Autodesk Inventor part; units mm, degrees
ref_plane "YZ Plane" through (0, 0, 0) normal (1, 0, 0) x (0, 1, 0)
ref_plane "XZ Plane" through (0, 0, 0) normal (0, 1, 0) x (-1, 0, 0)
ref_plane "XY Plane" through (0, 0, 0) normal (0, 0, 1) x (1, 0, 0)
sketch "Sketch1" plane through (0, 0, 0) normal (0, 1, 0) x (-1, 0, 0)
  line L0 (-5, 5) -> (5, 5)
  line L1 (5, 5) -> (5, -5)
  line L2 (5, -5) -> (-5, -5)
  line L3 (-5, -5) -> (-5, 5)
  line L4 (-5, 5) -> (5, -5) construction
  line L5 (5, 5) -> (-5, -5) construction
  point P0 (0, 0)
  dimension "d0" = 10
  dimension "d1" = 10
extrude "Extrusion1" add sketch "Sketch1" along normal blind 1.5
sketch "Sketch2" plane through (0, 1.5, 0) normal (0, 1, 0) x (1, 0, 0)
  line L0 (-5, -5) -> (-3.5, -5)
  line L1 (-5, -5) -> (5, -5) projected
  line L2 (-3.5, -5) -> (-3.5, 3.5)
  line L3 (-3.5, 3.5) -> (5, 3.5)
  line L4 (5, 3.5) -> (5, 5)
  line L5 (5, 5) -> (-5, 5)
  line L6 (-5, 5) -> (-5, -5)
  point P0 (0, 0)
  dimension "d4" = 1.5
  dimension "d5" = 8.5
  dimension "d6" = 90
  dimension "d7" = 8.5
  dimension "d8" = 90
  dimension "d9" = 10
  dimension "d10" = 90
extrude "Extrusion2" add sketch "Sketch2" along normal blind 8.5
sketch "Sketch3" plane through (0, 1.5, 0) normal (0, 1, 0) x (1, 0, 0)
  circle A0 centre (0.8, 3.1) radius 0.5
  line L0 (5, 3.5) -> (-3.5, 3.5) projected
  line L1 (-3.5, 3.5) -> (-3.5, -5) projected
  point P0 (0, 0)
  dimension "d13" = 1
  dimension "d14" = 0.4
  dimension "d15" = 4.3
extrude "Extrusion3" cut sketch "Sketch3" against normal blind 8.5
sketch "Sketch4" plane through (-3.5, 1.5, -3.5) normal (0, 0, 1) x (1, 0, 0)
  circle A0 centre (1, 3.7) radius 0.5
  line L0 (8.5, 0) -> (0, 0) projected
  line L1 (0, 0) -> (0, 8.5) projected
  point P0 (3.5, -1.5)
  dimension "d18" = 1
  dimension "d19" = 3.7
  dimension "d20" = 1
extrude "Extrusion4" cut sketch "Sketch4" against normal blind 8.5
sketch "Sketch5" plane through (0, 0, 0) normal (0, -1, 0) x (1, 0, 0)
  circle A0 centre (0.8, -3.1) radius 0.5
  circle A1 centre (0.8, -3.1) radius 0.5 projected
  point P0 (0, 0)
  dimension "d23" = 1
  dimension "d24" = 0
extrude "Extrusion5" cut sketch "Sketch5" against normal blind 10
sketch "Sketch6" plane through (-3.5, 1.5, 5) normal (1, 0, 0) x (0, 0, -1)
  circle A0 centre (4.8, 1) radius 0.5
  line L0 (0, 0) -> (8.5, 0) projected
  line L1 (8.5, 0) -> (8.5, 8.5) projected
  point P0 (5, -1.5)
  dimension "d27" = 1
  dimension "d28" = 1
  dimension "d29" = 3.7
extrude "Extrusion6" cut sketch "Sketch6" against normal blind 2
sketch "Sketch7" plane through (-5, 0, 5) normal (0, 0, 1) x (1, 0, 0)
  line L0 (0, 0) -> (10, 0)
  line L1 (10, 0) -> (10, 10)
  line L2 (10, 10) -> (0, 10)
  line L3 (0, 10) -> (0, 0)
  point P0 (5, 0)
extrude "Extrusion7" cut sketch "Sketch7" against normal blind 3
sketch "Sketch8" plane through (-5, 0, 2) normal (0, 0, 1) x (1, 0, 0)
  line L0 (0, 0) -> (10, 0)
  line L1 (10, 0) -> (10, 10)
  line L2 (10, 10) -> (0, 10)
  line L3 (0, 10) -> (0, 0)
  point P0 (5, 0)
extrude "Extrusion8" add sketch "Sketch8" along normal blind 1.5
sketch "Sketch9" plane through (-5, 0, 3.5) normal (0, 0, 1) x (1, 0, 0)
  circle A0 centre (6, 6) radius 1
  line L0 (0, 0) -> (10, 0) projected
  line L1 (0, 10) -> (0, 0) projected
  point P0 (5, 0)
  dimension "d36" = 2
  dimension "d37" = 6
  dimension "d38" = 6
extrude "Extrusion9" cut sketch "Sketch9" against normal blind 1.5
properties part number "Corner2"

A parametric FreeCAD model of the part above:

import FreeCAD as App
import Part
import Sketcher
from FreeCAD import Vector


def add_polygon(sketch, points):
    """Adds a closed chain of lines whose ends are joined by coincident constraints."""
    first, n = sketch.GeometryCount, len(points)
    for a, b in zip(points, points[1:] + points[:1]):
        sketch.addGeometry(Part.LineSegment(App.Vector(*a, 0), App.Vector(*b, 0)), False)
    for i in range(n):
        sketch.addConstraint(Sketcher.Constraint("Coincident", first + i, 2, first + (i + 1) % n, 1))

doc = App.newDocument("Part")
params = doc.addObject("Spreadsheet::Sheet", "Params")
for row, (alias, value) in enumerate([
    ("sketch1_width", "10 mm"),
    ("pad1_length", "1.5 mm"),
    ("sketch2_width", "10 mm"),
    ("sketch2_width2", "1.5 mm"),
    ("pad2_length", "8.5 mm"),
    ("sketch3_diameter", "1 mm"),
    ("pocket1_length", "8.5 mm"),
    ("sketch4_diameter", "1 mm"),
    ("pocket2_length", "8.5 mm"),
    ("sketch5_diameter", "1 mm"),
    ("pocket3_length", "10 mm"),
    ("sketch6_diameter", "1 mm"),
    ("pocket4_length", "2 mm"),
    ("sketch7_width", "10 mm"),
    ("pocket5_length", "3 mm"),
    ("sketch8_width", "10 mm"),
    ("pad3_length", "1.5 mm"),
    ("sketch9_diameter", "2 mm"),
    ("pocket6_length", "1.5 mm"),
], start=1):
    params.set(f"A{row}", alias)
    params.set(f"B{row}", "=" + value)
    params.setAlias(f"B{row}", alias)

body = doc.addObject("PartDesign::Body", "Body")

sketch1 = body.newObject("Sketcher::SketchObject", "Sketch")
sketch1.AttachmentSupport = (doc.getObject("XZ_Plane"), [""])
sketch1.MapMode = "FlatFace"
add_polygon(sketch1, [(-5, 5), (5, 5), (5, -5), (-5, -5)])
sketch1.addConstraint([
    Sketcher.Constraint("Horizontal", 0),
    Sketcher.Constraint("Vertical", 1),
    Sketcher.Constraint("Horizontal", 2),
    Sketcher.Constraint("Vertical", 3),
    Sketcher.Constraint("Symmetric", 0, 2, 2, 2, -1, 1),
    Sketcher.Constraint("Equal", 2, 1),
    Sketcher.Constraint("DistanceX", 0, 1, 0, 2, 10.0),
])
sketch1.setExpression("Constraints[10]", "Params.sketch1_width")
pad1 = body.newObject("PartDesign::Pad", "Pad")
pad1.Profile = sketch1
pad1.setExpression("Length", "Params.pad1_length")
pad1.Reversed = True

sketch2 = body.newObject("Sketcher::SketchObject", "Sketch001")
sketch2.AttachmentSupport = (doc.getObject("XZ_Plane"), [""])
sketch2.MapMode = "FlatFace"
sketch2.AttachmentOffset = App.Placement(Vector(0, 0, -1.5), App.Rotation())
add_polygon(sketch2, [(-5, -5), (-5, 5), (-3.5, 5), (-3.5, -3.5), (5, -3.5), (5, -5)])
sketch2.addConstraint([
    Sketcher.Constraint("Vertical", 0),
    Sketcher.Constraint("Horizontal", 1),
    Sketcher.Constraint("Vertical", 2),
    Sketcher.Constraint("Horizontal", 3),
    Sketcher.Constraint("Vertical", 4),
    Sketcher.Constraint("Horizontal", 5),
    Sketcher.Constraint("Symmetric", 0, 2, 4, 2, -1, 1),
    Sketcher.Constraint("Equal", 5, 0),
    Sketcher.Constraint("Equal", 3, 2),
    Sketcher.Constraint("DistanceX", 5, 2, 5, 1, 10.0),
    Sketcher.Constraint("DistanceX", 1, 1, 1, 2, 1.5),
])
sketch2.setExpression("Constraints[15]", "Params.sketch2_width")
sketch2.setExpression("Constraints[16]", "Params.sketch2_width2")
pad2 = body.newObject("PartDesign::Pad", "Pad001")
pad2.Profile = sketch2
pad2.setExpression("Length", "Params.pad2_length")
pad2.Reversed = True

sketch3 = body.newObject("Sketcher::SketchObject", "Sketch002")
sketch3.AttachmentSupport = (doc.getObject("XZ_Plane"), [""])
sketch3.MapMode = "FlatFace"
sketch3.AttachmentOffset = App.Placement(Vector(0, 0, -1.5), App.Rotation())
sketch3.addGeometry(Part.Circle(Vector(0.8, -3.1, 0), Vector(0, 0, 1), 0.5), False)
sketch3.addConstraint([
    Sketcher.Constraint("Diameter", 0, 1.0),
    Sketcher.Constraint("DistanceX", -1, 1, 0, 3, 0.8),
    Sketcher.Constraint("DistanceY", 0, 3, -1, 1, 3.1),
])
sketch3.setExpression("Constraints[0]", "Params.sketch3_diameter")
pocket1 = body.newObject("PartDesign::Pocket", "Pocket")
pocket1.Profile = sketch3
pocket1.setExpression("Length", "Params.pocket1_length")
pocket1.Reversed = True

sketch4 = body.newObject("Sketcher::SketchObject", "Sketch003")
sketch4.AttachmentSupport = (doc.getObject("XY_Plane"), [""])
sketch4.MapMode = "FlatFace"
sketch4.AttachmentOffset = App.Placement(Vector(0, 0, -3.5), App.Rotation())
sketch4.addGeometry(Part.Circle(Vector(-2.5, 5.2, 0), Vector(0, 0, 1), 0.5), False)
sketch4.addConstraint([
    Sketcher.Constraint("Diameter", 0, 1.0),
    Sketcher.Constraint("DistanceX", 0, 3, -1, 1, 2.5),
    Sketcher.Constraint("DistanceY", -1, 1, 0, 3, 5.2),
])
sketch4.setExpression("Constraints[0]", "Params.sketch4_diameter")
pocket2 = body.newObject("PartDesign::Pocket", "Pocket001")
pocket2.Profile = sketch4
pocket2.setExpression("Length", "Params.pocket2_length")

sketch5 = body.newObject("Sketcher::SketchObject", "Sketch004")
sketch5.AttachmentSupport = (doc.getObject("XZ_Plane"), [""])
sketch5.MapMode = "FlatFace"
sketch5.addGeometry(Part.Circle(Vector(0.8, -3.1, 0), Vector(0, 0, 1), 0.5), False)
sketch5.addConstraint([
    Sketcher.Constraint("Diameter", 0, 1.0),
    Sketcher.Constraint("DistanceX", -1, 1, 0, 3, 0.8),
    Sketcher.Constraint("DistanceY", 0, 3, -1, 1, 3.1),
])
sketch5.setExpression("Constraints[0]", "Params.sketch5_diameter")
pocket3 = body.newObject("PartDesign::Pocket", "Pocket002")
pocket3.Profile = sketch5
pocket3.setExpression("Length", "Params.pocket3_length")

sketch6 = body.newObject("Sketcher::SketchObject", "Sketch005")
sketch6.AttachmentSupport = (doc.getObject("YZ_Plane"), [""])
sketch6.MapMode = "FlatFace"
sketch6.AttachmentOffset = App.Placement(Vector(0, 0, -3.5), App.Rotation())
sketch6.addGeometry(Part.Circle(Vector(2.5, 0.2, 0), Vector(0, 0, 1), 0.5), False)
sketch6.addConstraint([
    Sketcher.Constraint("Diameter", 0, 1.0),
    Sketcher.Constraint("DistanceX", -1, 1, 0, 3, 2.5),
    Sketcher.Constraint("DistanceY", -1, 1, 0, 3, 0.2),
])
sketch6.setExpression("Constraints[0]", "Params.sketch6_diameter")
pocket4 = body.newObject("PartDesign::Pocket", "Pocket003")
pocket4.Profile = sketch6
pocket4.setExpression("Length", "Params.pocket4_length")

sketch7 = body.newObject("Sketcher::SketchObject", "Sketch006")
sketch7.AttachmentSupport = (doc.getObject("XY_Plane"), [""])
sketch7.MapMode = "FlatFace"
sketch7.AttachmentOffset = App.Placement(Vector(0, 0, 5), App.Rotation())
add_polygon(sketch7, [(-5, 10), (-5, 0), (5, 0), (5, 10)])
sketch7.addConstraint([
    Sketcher.Constraint("Vertical", 0),
    Sketcher.Constraint("Horizontal", 1),
    Sketcher.Constraint("Vertical", 2),
    Sketcher.Constraint("Horizontal", 3),
    Sketcher.Constraint("Symmetric", 0, 2, 1, 2, -1, 1),
    Sketcher.Constraint("Equal", 3, 0),
    Sketcher.Constraint("DistanceX", 1, 1, 1, 2, 10.0),
])
sketch7.setExpression("Constraints[10]", "Params.sketch7_width")
pocket5 = body.newObject("PartDesign::Pocket", "Pocket004")
pocket5.Profile = sketch7
pocket5.setExpression("Length", "Params.pocket5_length")

sketch8 = body.newObject("Sketcher::SketchObject", "Sketch007")
sketch8.AttachmentSupport = (doc.getObject("XY_Plane"), [""])
sketch8.MapMode = "FlatFace"
sketch8.AttachmentOffset = App.Placement(Vector(0, 0, 2), App.Rotation())
add_polygon(sketch8, [(-5, 10), (-5, 0), (5, 0), (5, 10)])
sketch8.addConstraint([
    Sketcher.Constraint("Vertical", 0),
    Sketcher.Constraint("Horizontal", 1),
    Sketcher.Constraint("Vertical", 2),
    Sketcher.Constraint("Horizontal", 3),
    Sketcher.Constraint("Symmetric", 0, 2, 1, 2, -1, 1),
    Sketcher.Constraint("Equal", 3, 0),
    Sketcher.Constraint("DistanceX", 1, 1, 1, 2, 10.0),
])
sketch8.setExpression("Constraints[10]", "Params.sketch8_width")
pad3 = body.newObject("PartDesign::Pad", "Pad002")
pad3.Profile = sketch8
pad3.setExpression("Length", "Params.pad3_length")

sketch9 = body.newObject("Sketcher::SketchObject", "Sketch008")
sketch9.AttachmentSupport = (doc.getObject("XY_Plane"), [""])
sketch9.MapMode = "FlatFace"
sketch9.AttachmentOffset = App.Placement(Vector(0, 0, 3.5), App.Rotation())
sketch9.addGeometry(Part.Circle(Vector(1, 6, 0), Vector(0, 0, 1), 1), False)
sketch9.addConstraint([
    Sketcher.Constraint("Diameter", 0, 2.0),
    Sketcher.Constraint("DistanceY", -1, 1, 0, 3, 6.0),
    Sketcher.Constraint("DistanceX", -1, 1, 0, 3, 1.0),
])
sketch9.setExpression("Constraints[0]", "Params.sketch9_diameter")
pocket6 = body.newObject("PartDesign::Pocket", "Pocket005")
pocket6.Profile = sketch9
pocket6.setExpression("Length", "Params.pocket6_length")

doc.recompute()
